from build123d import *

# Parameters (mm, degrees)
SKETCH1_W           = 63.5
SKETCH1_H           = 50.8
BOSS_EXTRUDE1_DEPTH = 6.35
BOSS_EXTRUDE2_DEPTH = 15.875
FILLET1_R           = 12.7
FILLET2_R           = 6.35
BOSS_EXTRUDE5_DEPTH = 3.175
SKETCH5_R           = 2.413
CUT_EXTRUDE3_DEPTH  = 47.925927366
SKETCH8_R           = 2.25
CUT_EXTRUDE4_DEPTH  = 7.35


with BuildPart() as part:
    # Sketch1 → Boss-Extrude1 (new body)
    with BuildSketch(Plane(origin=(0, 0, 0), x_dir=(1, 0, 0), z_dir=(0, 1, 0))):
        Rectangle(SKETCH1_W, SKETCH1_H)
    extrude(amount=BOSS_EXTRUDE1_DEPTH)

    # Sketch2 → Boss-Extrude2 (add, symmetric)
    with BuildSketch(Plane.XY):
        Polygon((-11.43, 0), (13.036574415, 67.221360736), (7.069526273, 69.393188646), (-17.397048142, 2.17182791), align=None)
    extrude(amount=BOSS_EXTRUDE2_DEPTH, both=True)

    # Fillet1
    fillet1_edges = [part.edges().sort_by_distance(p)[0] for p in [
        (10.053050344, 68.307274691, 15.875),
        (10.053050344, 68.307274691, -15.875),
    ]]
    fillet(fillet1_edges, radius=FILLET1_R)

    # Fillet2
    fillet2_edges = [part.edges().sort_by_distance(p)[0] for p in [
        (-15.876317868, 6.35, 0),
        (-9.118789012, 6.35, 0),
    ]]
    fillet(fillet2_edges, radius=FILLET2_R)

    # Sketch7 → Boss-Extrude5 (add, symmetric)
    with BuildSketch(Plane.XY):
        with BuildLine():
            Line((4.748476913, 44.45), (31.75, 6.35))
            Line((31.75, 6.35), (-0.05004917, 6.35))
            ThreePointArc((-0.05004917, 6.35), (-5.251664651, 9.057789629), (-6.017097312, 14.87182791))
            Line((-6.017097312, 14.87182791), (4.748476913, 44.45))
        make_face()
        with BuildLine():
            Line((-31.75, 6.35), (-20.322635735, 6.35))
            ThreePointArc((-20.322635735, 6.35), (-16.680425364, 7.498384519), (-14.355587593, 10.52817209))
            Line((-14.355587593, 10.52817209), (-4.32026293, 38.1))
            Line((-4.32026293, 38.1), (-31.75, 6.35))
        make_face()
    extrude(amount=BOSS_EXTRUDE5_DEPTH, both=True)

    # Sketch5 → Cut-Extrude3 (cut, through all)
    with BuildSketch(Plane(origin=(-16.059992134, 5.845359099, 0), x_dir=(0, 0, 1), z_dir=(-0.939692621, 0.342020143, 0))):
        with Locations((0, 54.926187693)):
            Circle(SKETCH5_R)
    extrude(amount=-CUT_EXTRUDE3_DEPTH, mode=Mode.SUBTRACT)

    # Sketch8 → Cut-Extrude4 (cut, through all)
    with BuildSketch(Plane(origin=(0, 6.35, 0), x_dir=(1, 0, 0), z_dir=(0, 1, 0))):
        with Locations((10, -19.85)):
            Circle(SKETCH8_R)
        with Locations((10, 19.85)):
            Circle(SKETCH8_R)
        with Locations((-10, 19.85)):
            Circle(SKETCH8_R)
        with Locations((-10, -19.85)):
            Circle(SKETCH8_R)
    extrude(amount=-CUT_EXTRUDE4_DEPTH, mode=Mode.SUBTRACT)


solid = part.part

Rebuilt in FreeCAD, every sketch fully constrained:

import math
import FreeCAD as App
import Part
import Sketcher

V = App.Vector
Q = App.Units.Quantity


def edges_at(feature, points):
    """Names of the edges that pass closest to the given points."""
    edges = feature.Shape.Edges
    near = lambda p: min(range(len(edges)), key=lambda i: edges[i].distToShape(Part.Vertex(*p))[0])
    return sorted({f"Edge{near(p) + 1}" for p in points})


def add_polygon(sketch, points):
    """Adds a closed chain of lines whose ends are joined by coincident constraints."""
    first, n = sketch.GeometryCount, len(points)
    for a, b in zip(points, points[1:] + points[:1]):
        sketch.addGeometry(Part.LineSegment(App.Vector(*a, 0), App.Vector(*b, 0)), False)
    for i in range(n):
        sketch.addConstraint(Sketcher.Constraint("Coincident", first + i, 2, first + (i + 1) % n, 1))

doc = App.newDocument("Part")
body = doc.addObject("PartDesign::Body", "Body")

sketch1 = body.newObject("Sketcher::SketchObject", "Sketch")
sketch1.AttachmentSupport = (doc.getObject("XZ_Plane"), [""])
sketch1.MapMode = "FlatFace"
add_polygon(sketch1, [(-32, -25), (-32, 25), (32, 25), (32, -25)])
sketch1.addConstraint(Sketcher.Constraint("Vertical", 0))
sketch1.addConstraint(Sketcher.Constraint("Horizontal", 1))
sketch1.addConstraint(Sketcher.Constraint("Vertical", 2))
sketch1.addConstraint(Sketcher.Constraint("Horizontal", 3))
sketch1.addConstraint(Sketcher.Constraint("Symmetric", 0, 2, 2, 2, -1, 1))
sketch1.addConstraint(Sketcher.Constraint("DistanceY", 0, 1, 0, 2, Q("2 in")))
sketch1.addConstraint(Sketcher.Constraint("DistanceX", 1, 1, 1, 2, Q("2.5 in")))
pad1 = body.newObject("PartDesign::Pad", "Pad")
pad1.Profile = sketch1
pad1.Length = Q("0.25 in")
pad1.Reversed = True

sketch2 = body.newObject("Sketcher::SketchObject", "Sketch001")
sketch2.AttachmentSupport = (doc.getObject("XY_Plane"), [""])
sketch2.MapMode = "FlatFace"
add_polygon(sketch2, [(-11, 0), (13, 67), (7, 69), (-17, 2)])
sketch2.addConstraint(Sketcher.Constraint("PointOnObject", 3, 2, -1))
sketch2.addConstraint(Sketcher.Constraint("Perpendicular", 0, 1))
sketch2.addConstraint(Sketcher.Constraint("Perpendicular", 1, 2))
sketch2.addConstraint(Sketcher.Constraint("Perpendicular", 2, 3))
sketch2.addConstraint(Sketcher.Constraint("Angle", 0, Q("70 deg")))
sketch2.addConstraint(Sketcher.Constraint("Distance", 1, Q("0.25 in")))
sketch2.addConstraint(Sketcher.Constraint("DistanceX", 3, 2, -1, 1, Q("0.45 in")))
sketch2.addConstraint(Sketcher.Constraint("DistanceY", -1, 1, 0, 2, Q("67.221361 mm")))
pad2 = body.newObject("PartDesign::Pad", "Pad001")
pad2.Profile = sketch2
pad2.Length = Q("1.25 in")
pad2.Midplane = True
doc.recompute()

fillet = body.newObject("PartDesign::Fillet", "Fillet")
fillet.Base = (pad2, edges_at(pad2, [(10.053, 68.307, 15.875), (10.053, 68.307, -15.875)]))
fillet.Radius = Q("0.5 in")
doc.recompute()

fillet2 = body.newObject("PartDesign::Fillet", "Fillet001")
fillet2.Base = (fillet, edges_at(fillet, [(-15.876, 6.35, 0), (-9.119, 6.35, 0)]))
fillet2.Radius = Q("0.25 in")

sketch3 = body.newObject("Sketcher::SketchObject", "Sketch002")
sketch3.AttachmentSupport = (doc.getObject("XY_Plane"), [""])
sketch3.MapMode = "FlatFace"
sketch3.addGeometry(Part.LineSegment(V(32, 6, 0), V(5, 44, 0)), False)
sketch3.addGeometry(Part.LineSegment(V(5, 44, 0), V(-6, 15, 0)), False)
sketch3.addGeometry(Part.ArcOfCircle(Part.Circle(V(0, 13, 0), V(0, 0, 1), 6), math.radians(160), math.radians(270)), False)
sketch3.addGeometry(Part.LineSegment(V(0, 6, 0), V(32, 6, 0)), False)
sketch3.addGeometry(Part.LineSegment(V(-32, 6, 0), V(-20, 6, 0)), False)
sketch3.addGeometry(Part.ArcOfCircle(Part.Circle(V(-20, 13, 0), V(0, 0, 1), 6), math.radians(-90), math.radians(-20)), False)
sketch3.addGeometry(Part.LineSegment(V(-14, 11, 0), V(-4, 38, 0)), False)
sketch3.addGeometry(Part.LineSegment(V(-4, 38, 0), V(-32, 6, 0)), False)
sketch3.addConstraint(Sketcher.Constraint("Coincident", 0, 2, 1, 1))
sketch3.addConstraint(Sketcher.Constraint("Tangent", 1, 2, 2, 1))
sketch3.addConstraint(Sketcher.Constraint("Tangent", 2, 2, 3, 1))
sketch3.addConstraint(Sketcher.Constraint("Coincident", 3, 2, 0, 1))
sketch3.addConstraint(Sketcher.Constraint("Tangent", 4, 2, 5, 1))
sketch3.addConstraint(Sketcher.Constraint("Tangent", 5, 2, 6, 1))
sketch3.addConstraint(Sketcher.Constraint("Coincident", 6, 2, 7, 1))
sketch3.addConstraint(Sketcher.Constraint("Coincident", 7, 2, 4, 1))
sketch3.addConstraint(Sketcher.Constraint("Horizontal", 3))
sketch3.addConstraint(Sketcher.Constraint("Horizontal", 4))
sketch3.addConstraint(Sketcher.Constraint("Equal", 2, 5))
sketch3.addConstraint(Sketcher.Constraint("Symmetric", 3, 2, 7, 2, -2))
sketch3.addConstraint(Sketcher.Constraint("Parallel", 1, 6))
sketch3.addConstraint(Sketcher.Constraint("Radius", 2, Q("0.25 in")))
sketch3.addConstraint(Sketcher.Constraint("Angle", 1, Q("-110 deg")))
sketch3.addConstraint(Sketcher.Constraint("DistanceY", 2, 3, 6, 2, Q("1 in")))
sketch3.addConstraint(Sketcher.Constraint("DistanceY", -1, 1, 2, 3, Q("0.5 in")))
sketch3.addConstraint(Sketcher.Constraint("DistanceY", 2, 2, 0, 2, Q("1.5 in")))
sketch3.addConstraint(Sketcher.Constraint("DistanceX", -1, 1, 3, 2, Q("1.25 in")))
sketch3.addConstraint(Sketcher.Constraint("DistanceX", 3, 1, 3, 2, Q("31.800049 mm")))
sketch3.addConstraint(Sketcher.Constraint("DistanceX", 4, 1, 4, 2, Q("11.427364 mm")))
pad3 = body.newObject("PartDesign::Pad", "Pad002")
pad3.Profile = sketch3
pad3.Length = Q("0.25 in")
pad3.Midplane = True

sketch4 = body.newObject("Sketcher::SketchObject", "Sketch003")
sketch4.Placement = App.Placement(V(-16.059992, 5.845359, 0), App.Rotation(V(0, 0, 1), V(0.342020143, 0.939692621, 0), V(-0.939692621, 0.342020143, 0), "ZXY"))
sketch4.addGeometry(Part.Circle(V(0, 54.9, 0), V(0, 0, 1), 2.4), False)
sketch4.addConstraint(Sketcher.Constraint("PointOnObject", 0, 3, -2))
sketch4.addConstraint(Sketcher.Constraint("Diameter", 0, Q("0.19 in")))
sketch4.addConstraint(Sketcher.Constraint("DistanceY", -1, 1, 0, 3, Q("54.926188 mm")))
pocket1 = body.newObject("PartDesign::Pocket", "Pocket")
pocket1.Profile = sketch4
pocket1.Type = "ThroughAll"

sketch5 = body.newObject("Sketcher::SketchObject", "Sketch004")
sketch5.AttachmentSupport = (doc.getObject("XZ_Plane"), [""])
sketch5.MapMode = "FlatFace"
sketch5.AttachmentOffset = App.Placement(V(0, 0, -0.25 * 25.4), App.Rotation())
sketch5.addGeometry(Part.Circle(V(10, 19.9, 0), V(0, 0, 1), 2.2), False)
sketch5.addGeometry(Part.Circle(V(10, -19.9, 0), V(0, 0, 1), 2.2), False)
sketch5.addGeometry(Part.Circle(V(-10, -19.9, 0), V(0, 0, 1), 2.2), False)
sketch5.addGeometry(Part.Circle(V(-10, 19.9, 0), V(0, 0, 1), 2.2), False)
sketch5.addConstraint(Sketcher.Constraint("Equal", 0, 1))
sketch5.addConstraint(Sketcher.Constraint("Equal", 1, 2))
sketch5.addConstraint(Sketcher.Constraint("Equal", 2, 3))
sketch5.addConstraint(Sketcher.Constraint("Symmetric", 0, 3, 2, 3, -1, 1))
sketch5.addConstraint(Sketcher.Constraint("Symmetric", 1, 3, 3, 3, -1, 1))
sketch5.addConstraint(Sketcher.Constraint("Symmetric", 1, 3, 2, 3, -2))
sketch5.addConstraint(Sketcher.Constraint("Diameter", 0, Q("4.5 mm")))
sketch5.addConstraint(Sketcher.Constraint("DistanceX", -1, 1, 0, 3, Q("10 mm")))
sketch5.addConstraint(Sketcher.Constraint("DistanceY", -1, 1, 0, 3, Q("19.85 mm")))
pocket2 = body.newObject("PartDesign::Pocket", "Pocket001")
pocket2.Profile = sketch5
pocket2.Type = "ThroughAll"
pocket2.Reversed = True

doc.recompute()
